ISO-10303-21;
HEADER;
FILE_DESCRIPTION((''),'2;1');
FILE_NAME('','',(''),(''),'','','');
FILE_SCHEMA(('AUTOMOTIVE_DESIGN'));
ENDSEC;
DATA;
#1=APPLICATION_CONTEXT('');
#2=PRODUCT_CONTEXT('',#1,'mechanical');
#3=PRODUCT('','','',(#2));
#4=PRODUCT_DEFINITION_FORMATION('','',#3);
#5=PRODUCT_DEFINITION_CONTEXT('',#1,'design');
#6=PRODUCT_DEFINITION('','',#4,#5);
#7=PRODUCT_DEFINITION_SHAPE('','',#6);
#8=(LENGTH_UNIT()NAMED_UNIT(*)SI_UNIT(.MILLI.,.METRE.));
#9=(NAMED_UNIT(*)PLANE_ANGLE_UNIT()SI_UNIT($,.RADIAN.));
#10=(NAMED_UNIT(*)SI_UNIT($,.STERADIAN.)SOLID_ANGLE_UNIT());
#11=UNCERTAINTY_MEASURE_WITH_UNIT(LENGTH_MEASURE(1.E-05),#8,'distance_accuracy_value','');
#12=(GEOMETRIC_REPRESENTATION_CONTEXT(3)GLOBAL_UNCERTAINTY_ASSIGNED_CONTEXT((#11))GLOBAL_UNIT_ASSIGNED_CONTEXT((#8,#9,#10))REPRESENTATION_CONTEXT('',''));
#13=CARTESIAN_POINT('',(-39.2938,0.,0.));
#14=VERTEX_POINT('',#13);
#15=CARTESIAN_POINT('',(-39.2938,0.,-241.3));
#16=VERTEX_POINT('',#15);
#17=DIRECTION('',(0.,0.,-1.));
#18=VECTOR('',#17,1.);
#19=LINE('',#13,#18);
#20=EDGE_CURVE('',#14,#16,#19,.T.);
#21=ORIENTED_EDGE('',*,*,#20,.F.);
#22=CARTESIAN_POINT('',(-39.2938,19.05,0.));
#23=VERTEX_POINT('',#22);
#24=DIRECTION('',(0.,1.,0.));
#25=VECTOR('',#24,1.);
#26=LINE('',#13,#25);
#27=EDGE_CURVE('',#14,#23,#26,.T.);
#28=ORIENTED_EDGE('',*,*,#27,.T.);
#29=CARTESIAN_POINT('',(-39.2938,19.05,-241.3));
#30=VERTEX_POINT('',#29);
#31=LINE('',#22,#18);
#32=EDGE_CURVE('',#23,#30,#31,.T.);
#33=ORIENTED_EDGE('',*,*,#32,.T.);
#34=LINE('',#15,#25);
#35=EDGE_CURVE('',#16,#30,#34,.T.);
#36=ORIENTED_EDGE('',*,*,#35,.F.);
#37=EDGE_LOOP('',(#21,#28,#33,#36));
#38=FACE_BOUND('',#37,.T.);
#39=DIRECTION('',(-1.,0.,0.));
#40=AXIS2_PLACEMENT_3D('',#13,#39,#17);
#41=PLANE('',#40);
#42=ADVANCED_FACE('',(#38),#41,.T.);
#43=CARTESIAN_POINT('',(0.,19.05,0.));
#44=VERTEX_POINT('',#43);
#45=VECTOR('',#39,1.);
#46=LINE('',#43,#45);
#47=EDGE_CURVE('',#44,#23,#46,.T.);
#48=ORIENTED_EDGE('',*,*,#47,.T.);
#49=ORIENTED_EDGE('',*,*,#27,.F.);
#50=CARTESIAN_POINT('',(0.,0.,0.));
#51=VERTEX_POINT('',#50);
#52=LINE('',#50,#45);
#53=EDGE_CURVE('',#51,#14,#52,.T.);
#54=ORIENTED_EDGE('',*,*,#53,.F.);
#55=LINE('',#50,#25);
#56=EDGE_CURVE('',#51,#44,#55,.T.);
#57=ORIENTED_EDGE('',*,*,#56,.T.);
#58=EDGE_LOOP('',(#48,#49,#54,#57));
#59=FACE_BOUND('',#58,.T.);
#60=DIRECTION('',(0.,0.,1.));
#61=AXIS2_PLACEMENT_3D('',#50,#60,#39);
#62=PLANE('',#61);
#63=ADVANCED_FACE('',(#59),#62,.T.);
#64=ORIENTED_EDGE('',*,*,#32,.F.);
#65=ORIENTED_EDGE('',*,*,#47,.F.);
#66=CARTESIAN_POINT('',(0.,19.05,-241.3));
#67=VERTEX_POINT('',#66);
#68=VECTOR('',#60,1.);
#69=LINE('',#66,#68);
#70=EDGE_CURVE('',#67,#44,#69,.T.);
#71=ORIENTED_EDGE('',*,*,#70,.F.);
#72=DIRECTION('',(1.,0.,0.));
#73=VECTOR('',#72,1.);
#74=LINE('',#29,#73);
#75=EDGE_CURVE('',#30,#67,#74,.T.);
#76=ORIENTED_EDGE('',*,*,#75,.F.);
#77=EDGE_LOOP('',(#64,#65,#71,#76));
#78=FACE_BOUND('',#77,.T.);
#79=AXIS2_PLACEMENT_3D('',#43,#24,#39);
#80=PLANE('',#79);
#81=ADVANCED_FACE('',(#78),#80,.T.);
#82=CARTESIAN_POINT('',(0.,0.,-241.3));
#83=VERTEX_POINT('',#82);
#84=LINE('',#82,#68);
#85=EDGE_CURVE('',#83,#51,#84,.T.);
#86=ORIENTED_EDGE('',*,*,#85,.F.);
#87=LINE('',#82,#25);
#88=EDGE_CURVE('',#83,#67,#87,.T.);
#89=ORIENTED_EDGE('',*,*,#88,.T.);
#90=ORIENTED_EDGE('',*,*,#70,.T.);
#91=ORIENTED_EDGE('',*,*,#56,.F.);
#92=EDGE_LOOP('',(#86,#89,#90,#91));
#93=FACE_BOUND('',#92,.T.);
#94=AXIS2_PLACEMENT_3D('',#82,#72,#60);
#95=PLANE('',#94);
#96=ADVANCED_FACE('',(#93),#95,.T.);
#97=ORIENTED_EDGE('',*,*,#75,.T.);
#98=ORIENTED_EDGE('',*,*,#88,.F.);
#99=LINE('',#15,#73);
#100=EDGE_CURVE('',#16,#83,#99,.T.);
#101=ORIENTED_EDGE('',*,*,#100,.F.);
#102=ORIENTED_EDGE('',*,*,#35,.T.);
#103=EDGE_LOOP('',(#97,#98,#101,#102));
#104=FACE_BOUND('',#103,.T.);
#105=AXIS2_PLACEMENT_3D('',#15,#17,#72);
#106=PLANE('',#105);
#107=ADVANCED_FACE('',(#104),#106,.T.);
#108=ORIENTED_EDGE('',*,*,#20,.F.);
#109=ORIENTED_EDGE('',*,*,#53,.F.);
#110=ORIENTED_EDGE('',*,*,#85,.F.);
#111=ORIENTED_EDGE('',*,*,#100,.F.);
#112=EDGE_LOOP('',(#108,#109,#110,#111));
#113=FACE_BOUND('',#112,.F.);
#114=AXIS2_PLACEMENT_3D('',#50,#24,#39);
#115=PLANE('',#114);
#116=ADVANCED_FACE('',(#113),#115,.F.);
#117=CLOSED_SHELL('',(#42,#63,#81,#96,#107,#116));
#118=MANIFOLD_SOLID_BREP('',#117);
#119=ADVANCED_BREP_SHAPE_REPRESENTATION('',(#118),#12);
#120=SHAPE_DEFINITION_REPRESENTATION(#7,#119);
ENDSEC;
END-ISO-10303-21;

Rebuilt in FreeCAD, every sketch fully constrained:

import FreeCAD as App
import Part
import Sketcher

V = App.Vector
Q = App.Units.Quantity


def add_polygon(sketch, points):
    """Adds a closed chain of lines whose ends are joined by coincident constraints."""
    first, n = sketch.GeometryCount, len(points)
    for a, b in zip(points, points[1:] + points[:1]):
        sketch.addGeometry(Part.LineSegment(App.Vector(*a, 0), App.Vector(*b, 0)), False)
    for i in range(n):
        sketch.addConstraint(Sketcher.Constraint("Coincident", first + i, 2, first + (i + 1) % n, 1))

doc = App.newDocument("Part")
params = doc.addObject("Spreadsheet::Sheet", "Params")
for row, (alias, value) in enumerate([
    ("sketch1_height", "9.5 in"),
    ("sketch1_width", "1.547 in"),
    ("pad1_length", "0.75 in"),
], start=1):
    params.set(f"A{row}", alias)
    params.set(f"B{row}", "=" + value)
    params.setAlias(f"B{row}", alias)

body = doc.addObject("PartDesign::Body", "Body")

# Sketch on XZ plane
sketch1 = doc.addObject("Sketcher::SketchObject", "Sketch")
body.addObject(sketch1)
sketch1.AttachmentSupport = (doc.XZ_Plane, [""])
sketch1.MapMode = "FlatFace"
add_polygon(sketch1, [(-39, 0), (0, 0), (0, -241), (-39, -241)])  # lines 0-3
sketch1.addConstraint([
    Sketcher.Constraint("Horizontal", 0),
    Sketcher.Constraint("Vertical", 1),
    Sketcher.Constraint("Horizontal", 2),
    Sketcher.Constraint("Vertical", 3),
    Sketcher.Constraint("Coincident", 0, 2, -1, 1),
    Sketcher.Constraint("DistanceY", 1, 2, 1, 1, Q("9.5 in")),
    Sketcher.Constraint("DistanceX", 0, 1, 0, 2, Q("1.547 in")),
])
sketch1.setExpression("Constraints[9]", "Params.sketch1_height")
sketch1.setExpression("Constraints[10]", "Params.sketch1_width")
pad1 = doc.addObject("PartDesign::Pad", "Pad")
body.addObject(pad1)
pad1.Profile = sketch1
pad1.setExpression("Length", "Params.pad1_length")
pad1.Reversed = True

doc.recompute()
